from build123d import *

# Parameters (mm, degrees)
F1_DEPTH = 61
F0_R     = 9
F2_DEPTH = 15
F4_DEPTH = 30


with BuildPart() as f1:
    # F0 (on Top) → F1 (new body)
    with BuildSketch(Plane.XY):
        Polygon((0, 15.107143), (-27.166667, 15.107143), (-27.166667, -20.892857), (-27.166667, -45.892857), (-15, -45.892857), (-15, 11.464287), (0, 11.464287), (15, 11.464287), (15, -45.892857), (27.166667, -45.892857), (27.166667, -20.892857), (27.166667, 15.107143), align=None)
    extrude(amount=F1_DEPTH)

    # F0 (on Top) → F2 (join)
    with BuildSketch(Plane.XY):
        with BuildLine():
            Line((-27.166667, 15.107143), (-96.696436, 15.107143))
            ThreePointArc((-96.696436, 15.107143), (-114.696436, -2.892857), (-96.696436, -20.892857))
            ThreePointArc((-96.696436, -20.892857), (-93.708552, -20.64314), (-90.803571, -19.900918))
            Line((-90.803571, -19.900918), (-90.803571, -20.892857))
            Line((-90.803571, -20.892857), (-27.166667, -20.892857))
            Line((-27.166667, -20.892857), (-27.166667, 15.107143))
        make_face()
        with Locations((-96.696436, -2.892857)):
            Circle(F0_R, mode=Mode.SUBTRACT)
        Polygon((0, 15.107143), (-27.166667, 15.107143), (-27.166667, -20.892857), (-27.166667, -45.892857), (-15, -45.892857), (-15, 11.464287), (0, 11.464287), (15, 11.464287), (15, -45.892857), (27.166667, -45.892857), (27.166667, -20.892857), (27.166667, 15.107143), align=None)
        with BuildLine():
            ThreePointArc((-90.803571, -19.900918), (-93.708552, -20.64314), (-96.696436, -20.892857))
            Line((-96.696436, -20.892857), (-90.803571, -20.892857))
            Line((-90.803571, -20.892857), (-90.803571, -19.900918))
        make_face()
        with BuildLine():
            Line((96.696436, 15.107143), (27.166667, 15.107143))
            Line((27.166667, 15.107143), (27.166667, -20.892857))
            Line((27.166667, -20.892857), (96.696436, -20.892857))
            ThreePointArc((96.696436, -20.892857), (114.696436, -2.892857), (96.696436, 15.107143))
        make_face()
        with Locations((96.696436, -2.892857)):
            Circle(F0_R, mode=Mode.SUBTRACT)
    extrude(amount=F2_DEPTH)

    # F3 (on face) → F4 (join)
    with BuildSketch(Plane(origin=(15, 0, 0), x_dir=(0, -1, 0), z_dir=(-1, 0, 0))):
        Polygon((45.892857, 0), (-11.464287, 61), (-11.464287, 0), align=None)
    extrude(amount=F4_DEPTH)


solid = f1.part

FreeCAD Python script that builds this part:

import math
import FreeCAD as App
import Part
import Sketcher
Q = App.Units.Quantity


def add_polygon(sketch, points):
    """Adds a closed chain of lines whose ends are joined by coincident constraints."""
    first, n = sketch.GeometryCount, len(points)
    for a, b in zip(points, points[1:] + points[:1]):
        sketch.addGeometry(Part.LineSegment(App.Vector(*a, 0), App.Vector(*b, 0)), False)
    for i in range(n):
        sketch.addConstraint(Sketcher.Constraint("Coincident", first + i, 2, first + (i + 1) % n, 1))

doc = App.newDocument("Part")
body = doc.addObject("PartDesign::Body", "Body")

sketch1 = doc.addObject("Sketcher::SketchObject", "Sketch")
body.addObject(sketch1)
sketch1.AttachmentSupport = (doc.XY_Plane, [""])
sketch1.MapMode = "FlatFace"
add_polygon(sketch1, [(-27, 15), (-27, -46), (-15, -46), (-15, 11), (15, 11), (15, -46), (27, -46), (27, 15)])
sketch1.addConstraint(Sketcher.Constraint("Vertical", 0))
sketch1.addConstraint(Sketcher.Constraint("Horizontal", 1))
sketch1.addConstraint(Sketcher.Constraint("Vertical", 2))
sketch1.addConstraint(Sketcher.Constraint("Horizontal", 3))
sketch1.addConstraint(Sketcher.Constraint("Vertical", 4))
sketch1.addConstraint(Sketcher.Constraint("Horizontal", 5))
sketch1.addConstraint(Sketcher.Constraint("Vertical", 6))
sketch1.addConstraint(Sketcher.Constraint("Horizontal", 7))
sketch1.addConstraint(Sketcher.Constraint("Symmetric", 1, 2, 4, 2, -2))
sketch1.addConstraint(Sketcher.Constraint("Equal", 1, 5))
sketch1.addConstraint(Sketcher.Constraint("DistanceX", 3, 1, 3, 2, Q("30 mm")))
sketch1.addConstraint(Sketcher.Constraint("DistanceY", 0, 2, 0, 1, Q("61 mm")))
sketch1.addConstraint(Sketcher.Constraint("DistanceX", 1, 1, 1, 2, Q("12.166667 mm")))
sketch1.addConstraint(Sketcher.Constraint("DistanceY", 2, 1, 2, 2, Q("57.357144 mm")))
sketch1.addConstraint(Sketcher.Constraint("DistanceY", 0, 2, -1, 1, Q("45.892857 mm")))
pad1 = doc.addObject("PartDesign::Pad", "Pad")
body.addObject(pad1)
pad1.Profile = sketch1
pad1.Length = 61

sketch2 = doc.addObject("Sketcher::SketchObject", "Sketch001")
body.addObject(sketch2)
sketch2.AttachmentSupport = (doc.XY_Plane, [""])
sketch2.MapMode = "FlatFace"
sketch2.addGeometry(Part.ArcOfCircle(Part.Circle(App.Vector(-97, -3, 0), App.Vector(0, 0, 1), 18), math.radians(90), math.radians(270)), False)
sketch2.addGeometry(Part.LineSegment(App.Vector(-97, -21, 0), App.Vector(-27, -21, 0)), False)
sketch2.addGeometry(Part.LineSegment(App.Vector(-27, -21, 0), App.Vector(-27, -46, 0)), False)
sketch2.addGeometry(Part.LineSegment(App.Vector(-27, -46, 0), App.Vector(-15, -46, 0)), False)
sketch2.addGeometry(Part.LineSegment(App.Vector(-15, -46, 0), App.Vector(-15, 11, 0)), False)
sketch2.addGeometry(Part.LineSegment(App.Vector(-15, 11, 0), App.Vector(15, 11, 0)), False)
sketch2.addGeometry(Part.LineSegment(App.Vector(15, 11, 0), App.Vector(15, -46, 0)), False)
sketch2.addGeometry(Part.LineSegment(App.Vector(15, -46, 0), App.Vector(27, -46, 0)), False)
sketch2.addGeometry(Part.LineSegment(App.Vector(27, -46, 0), App.Vector(27, -21, 0)), False)
sketch2.addGeometry(Part.LineSegment(App.Vector(27, -21, 0), App.Vector(97, -21, 0)), False)
sketch2.addGeometry(Part.ArcOfCircle(Part.Circle(App.Vector(97, -3, 0), App.Vector(0, 0, 1), 18), math.radians(-90), math.radians(90)), False)
sketch2.addGeometry(Part.LineSegment(App.Vector(97, 15, 0), App.Vector(-97, 15, 0)), False)
sketch2.addGeometry(Part.Circle(App.Vector(-97, -3, 0), App.Vector(0, 0, 1), 9), False)
sketch2.addGeometry(Part.Circle(App.Vector(97, -3, 0), App.Vector(0, 0, 1), 9), False)
sketch2.addConstraint(Sketcher.Constraint("Tangent", 0, 2, 1, 1))
sketch2.addConstraint(Sketcher.Constraint("Coincident", 1, 2, 2, 1))
sketch2.addConstraint(Sketcher.Constraint("Coincident", 2, 2, 3, 1))
sketch2.addConstraint(Sketcher.Constraint("Coincident", 3, 2, 4, 1))
sketch2.addConstraint(Sketcher.Constraint("Coincident", 4, 2, 5, 1))
sketch2.addConstraint(Sketcher.Constraint("Coincident", 5, 2, 6, 1))
sketch2.addConstraint(Sketcher.Constraint("Coincident", 6, 2, 7, 1))
sketch2.addConstraint(Sketcher.Constraint("Coincident", 7, 2, 8, 1))
sketch2.addConstraint(Sketcher.Constraint("Coincident", 8, 2, 9, 1))
sketch2.addConstraint(Sketcher.Constraint("Tangent", 9, 2, 10, 1))
sketch2.addConstraint(Sketcher.Constraint("Tangent", 10, 2, 11, 1))
sketch2.addConstraint(Sketcher.Constraint("Tangent", 11, 2, 0, 1))
sketch2.addConstraint(Sketcher.Constraint("Horizontal", 1))
sketch2.addConstraint(Sketcher.Constraint("Vertical", 2))
sketch2.addConstraint(Sketcher.Constraint("Horizontal", 3))
sketch2.addConstraint(Sketcher.Constraint("Vertical", 4))
sketch2.addConstraint(Sketcher.Constraint("Horizontal", 5))
sketch2.addConstraint(Sketcher.Constraint("Vertical", 6))
sketch2.addConstraint(Sketcher.Constraint("Horizontal", 7))
sketch2.addConstraint(Sketcher.Constraint("Vertical", 8))
sketch2.addConstraint(Sketcher.Constraint("Horizontal", 9))
sketch2.addConstraint(Sketcher.Constraint("Horizontal", 11))
sketch2.addConstraint(Sketcher.Constraint("Coincident", 12, 3, 0, 3))
sketch2.addConstraint(Sketcher.Constraint("Coincident", 13, 3, 10, 3))
sketch2.addConstraint(Sketcher.Constraint("Equal", 0, 10))
sketch2.addConstraint(Sketcher.Constraint("Equal", 12, 13))
sketch2.addConstraint(Sketcher.Constraint("Symmetric", 3, 2, 6, 2, -2))
sketch2.addConstraint(Sketcher.Constraint("Equal", 3, 7))
sketch2.addConstraint(Sketcher.Constraint("Equal", 1, 9))
sketch2.addConstraint(Sketcher.Constraint("Diameter", 12, Q("18 mm")))
sketch2.addConstraint(Sketcher.Constraint("Radius", 0, Q("18 mm")))
sketch2.addConstraint(Sketcher.Constraint("DistanceX", 5, 1, 5, 2, Q("30 mm")))
sketch2.addConstraint(Sketcher.Constraint("DistanceY", 2, 2, 2, 1, Q("25 mm")))
sketch2.addConstraint(Sketcher.Constraint("DistanceX", 1, 1, 1, 2, Q("69.529769 mm")))
sketch2.addConstraint(Sketcher.Constraint("DistanceX", 3, 1, 3, 2, Q("12.166667 mm")))
sketch2.addConstraint(Sketcher.Constraint("DistanceY", 4, 1, 4, 2, Q("57.357144 mm")))
sketch2.addConstraint(Sketcher.Constraint("DistanceY", 0, 3, -1, 1, Q("2.892857 mm")))
pad2 = doc.addObject("PartDesign::Pad", "Pad001")
body.addObject(pad2)
pad2.Profile = sketch2
pad2.Length = 15

sketch3 = doc.addObject("Sketcher::SketchObject", "Sketch002")
body.addObject(sketch3)
sketch3.AttachmentSupport = (doc.YZ_Plane, [""])
sketch3.MapMode = "FlatFace"
sketch3.AttachmentOffset = App.Placement(App.Vector(0, 0, 15), App.Rotation())
add_polygon(sketch3, [(-46, 0), (11, 61), (11, 0)])
sketch3.addConstraint(Sketcher.Constraint("Vertical", 1))
sketch3.addConstraint(Sketcher.Constraint("Horizontal", 2))
sketch3.addConstraint(Sketcher.Constraint("PointOnObject", 1, 2, -1))
sketch3.addConstraint(Sketcher.Constraint("DistanceY", 1, 2, 1, 1, Q("61 mm")))
sketch3.addConstraint(Sketcher.Constraint("Distance", 0, Q("83.730771 mm")))
sketch3.addConstraint(Sketcher.Constraint("DistanceX", -1, 1, 0, 2, Q("11.464287 mm")))
pad3 = doc.addObject("PartDesign::Pad", "Pad002")
body.addObject(pad3)
pad3.Profile = sketch3
pad3.Length = 30
pad3.Reversed = True

doc.recompute()
